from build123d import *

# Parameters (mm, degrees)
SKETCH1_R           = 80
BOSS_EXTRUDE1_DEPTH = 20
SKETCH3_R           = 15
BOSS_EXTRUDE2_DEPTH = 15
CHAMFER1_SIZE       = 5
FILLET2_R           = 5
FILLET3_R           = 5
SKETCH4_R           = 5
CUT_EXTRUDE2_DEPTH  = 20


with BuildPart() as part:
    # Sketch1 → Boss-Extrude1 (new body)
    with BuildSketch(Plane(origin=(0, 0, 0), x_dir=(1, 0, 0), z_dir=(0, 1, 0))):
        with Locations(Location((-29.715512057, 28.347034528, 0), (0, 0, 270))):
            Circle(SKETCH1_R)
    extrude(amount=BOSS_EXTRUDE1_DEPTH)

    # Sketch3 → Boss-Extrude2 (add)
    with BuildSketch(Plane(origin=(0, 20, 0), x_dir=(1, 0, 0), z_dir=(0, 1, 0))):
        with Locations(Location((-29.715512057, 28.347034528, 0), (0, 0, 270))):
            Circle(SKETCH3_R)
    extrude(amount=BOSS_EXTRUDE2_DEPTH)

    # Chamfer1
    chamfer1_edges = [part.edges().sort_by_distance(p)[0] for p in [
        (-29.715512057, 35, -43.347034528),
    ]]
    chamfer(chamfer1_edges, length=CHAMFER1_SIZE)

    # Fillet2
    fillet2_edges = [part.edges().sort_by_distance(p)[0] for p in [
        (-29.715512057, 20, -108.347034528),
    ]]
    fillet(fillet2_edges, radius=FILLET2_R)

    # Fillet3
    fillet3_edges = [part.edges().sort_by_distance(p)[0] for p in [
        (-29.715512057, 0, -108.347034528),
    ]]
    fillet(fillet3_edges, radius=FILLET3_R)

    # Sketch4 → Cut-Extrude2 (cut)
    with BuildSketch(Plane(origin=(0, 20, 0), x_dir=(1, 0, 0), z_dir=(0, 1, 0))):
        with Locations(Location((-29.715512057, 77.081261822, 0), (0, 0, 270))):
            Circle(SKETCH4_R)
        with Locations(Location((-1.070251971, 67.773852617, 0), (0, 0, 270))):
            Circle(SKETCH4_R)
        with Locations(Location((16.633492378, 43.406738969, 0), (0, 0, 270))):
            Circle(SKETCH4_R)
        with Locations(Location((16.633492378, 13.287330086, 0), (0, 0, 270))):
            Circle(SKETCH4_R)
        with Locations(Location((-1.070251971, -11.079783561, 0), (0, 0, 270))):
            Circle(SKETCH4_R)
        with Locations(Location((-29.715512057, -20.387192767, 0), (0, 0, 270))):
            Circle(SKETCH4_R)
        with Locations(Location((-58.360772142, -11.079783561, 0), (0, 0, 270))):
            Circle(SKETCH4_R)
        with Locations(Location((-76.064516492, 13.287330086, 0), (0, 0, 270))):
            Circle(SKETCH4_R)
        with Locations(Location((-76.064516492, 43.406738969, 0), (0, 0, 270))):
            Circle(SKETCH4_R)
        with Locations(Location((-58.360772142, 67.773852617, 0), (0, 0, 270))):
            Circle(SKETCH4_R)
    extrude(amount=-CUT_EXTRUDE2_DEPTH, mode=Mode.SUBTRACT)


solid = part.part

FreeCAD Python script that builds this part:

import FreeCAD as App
import Part
import Sketcher
from FreeCAD import Vector


def edges_at(feature, points):
    """Names of the edges that pass closest to the given points."""
    edges = feature.Shape.Edges
    near = lambda p: min(range(len(edges)), key=lambda i: edges[i].distToShape(Part.Vertex(*p))[0])
    return sorted({f"Edge{near(p) + 1}" for p in points})

doc = App.newDocument("Part")
params = doc.addObject("Spreadsheet::Sheet", "Params")
for row, (alias, value) in enumerate([
    ("sketch1_diameter", "160 mm"),
    ("pad1_length", "20 mm"),
    ("sketch2_diameter", "30 mm"),
    ("pad2_length", "15 mm"),
    ("chamfer_size", "5 mm"),
    ("fillet_radius", "5 mm"),
    ("fillet2_radius", "5 mm"),
    ("sketch3_diameter", "10 mm"),
    ("pocket1_length", "20 mm"),
], start=1):
    params.set(f"A{row}", alias)
    params.set(f"B{row}", "=" + value)
    params.setAlias(f"B{row}", alias)

body = doc.addObject("PartDesign::Body", "Body")

sketch1 = body.newObject("Sketcher::SketchObject", "Sketch")
sketch1.AttachmentSupport = (doc.getObject("XZ_Plane"), [""])
sketch1.MapMode = "FlatFace"
sketch1.addGeometry(Part.Circle(Vector(-30, -28, 0), Vector(0, 0, 1), 80), False)
sketch1.addConstraint(Sketcher.Constraint("Diameter", 0, 160.0))
sketch1.addConstraint(Sketcher.Constraint("DistanceX", 0, 3, -1, 1, 29.715512))
sketch1.addConstraint(Sketcher.Constraint("DistanceY", 0, 3, -1, 1, 28.347035))
sketch1.setExpression("Constraints[0]", "Params.sketch1_diameter")
pad1 = body.newObject("PartDesign::Pad", "Pad")
pad1.Profile = sketch1
pad1.setExpression("Length", "Params.pad1_length")
pad1.Reversed = True

sketch2 = body.newObject("Sketcher::SketchObject", "Sketch001")
sketch2.AttachmentSupport = (doc.getObject("XZ_Plane"), [""])
sketch2.MapMode = "FlatFace"
sketch2.AttachmentOffset = App.Placement(Vector(0, 0, -20), App.Rotation())
sketch2.addGeometry(Part.Circle(Vector(-30, -28, 0), Vector(0, 0, 1), 15), False)
sketch2.addConstraint(Sketcher.Constraint("Diameter", 0, 30.0))
sketch2.addConstraint(Sketcher.Constraint("DistanceX", 0, 3, -1, 1, 29.715512))
sketch2.addConstraint(Sketcher.Constraint("DistanceY", 0, 3, -1, 1, 28.347035))
sketch2.setExpression("Constraints[0]", "Params.sketch2_diameter")
pad2 = body.newObject("PartDesign::Pad", "Pad001")
pad2.Profile = sketch2
pad2.setExpression("Length", "Params.pad2_length")
pad2.Reversed = True
doc.recompute()

chamfer = body.newObject("PartDesign::Chamfer", "Chamfer")
chamfer.Base = (pad2, edges_at(pad2, [(-29.716, 35, -43.347)]))
chamfer.setExpression("Size", "Params.chamfer_size")
doc.recompute()

fillet = body.newObject("PartDesign::Fillet", "Fillet")
fillet.Base = (chamfer, edges_at(chamfer, [(-29.716, 20, -108.347)]))
fillet.setExpression("Radius", "Params.fillet_radius")
doc.recompute()

fillet2 = body.newObject("PartDesign::Fillet", "Fillet001")
fillet2.Base = (fillet, edges_at(fillet, [(-29.716, 0, -108.347)]))
fillet2.setExpression("Radius", "Params.fillet2_radius")

sketch3 = body.newObject("Sketcher::SketchObject", "Sketch002")
sketch3.AttachmentSupport = (doc.getObject("XZ_Plane"), [""])
sketch3.MapMode = "FlatFace"
sketch3.AttachmentOffset = App.Placement(Vector(0, 0, -20), App.Rotation())
sketch3.addGeometry(Part.Circle(Vector(-30, -77, 0), Vector(0, 0, 1), 5), False)
sketch3.addGeometry(Part.Circle(Vector(-1, -68, 0), Vector(0, 0, 1), 5), False)
sketch3.addGeometry(Part.Circle(Vector(17, -43, 0), Vector(0, 0, 1), 5), False)
sketch3.addGeometry(Part.Circle(Vector(17, -13, 0), Vector(0, 0, 1), 5), False)
sketch3.addGeometry(Part.Circle(Vector(-1, 11, 0), Vector(0, 0, 1), 5), False)
sketch3.addGeometry(Part.Circle(Vector(-30, 20, 0), Vector(0, 0, 1), 5), False)
sketch3.addGeometry(Part.Circle(Vector(-58, 11, 0), Vector(0, 0, 1), 5), False)
sketch3.addGeometry(Part.Circle(Vector(-76, -13, 0), Vector(0, 0, 1), 5), False)
sketch3.addGeometry(Part.Circle(Vector(-76, -43, 0), Vector(0, 0, 1), 5), False)
sketch3.addGeometry(Part.Circle(Vector(-58, -68, 0), Vector(0, 0, 1), 5), False)
sketch3.addConstraint(Sketcher.Constraint("Equal", 0, 1))
sketch3.addConstraint(Sketcher.Constraint("Equal", 1, 2))
sketch3.addConstraint(Sketcher.Constraint("Equal", 2, 3))
sketch3.addConstraint(Sketcher.Constraint("Equal", 3, 4))
sketch3.addConstraint(Sketcher.Constraint("Equal", 4, 5))
sketch3.addConstraint(Sketcher.Constraint("Equal", 5, 6))
sketch3.addConstraint(Sketcher.Constraint("Equal", 6, 7))
sketch3.addConstraint(Sketcher.Constraint("Equal", 7, 8))
sketch3.addConstraint(Sketcher.Constraint("Equal", 8, 9))
sketch3.addConstraint(Sketcher.Constraint("Horizontal", 4, 3, 6, 3))
sketch3.addConstraint(Sketcher.Constraint("Horizontal", 3, 3, 7, 3))
sketch3.addConstraint(Sketcher.Constraint("Horizontal", 2, 3, 8, 3))
sketch3.addConstraint(Sketcher.Constraint("Horizontal", 1, 3, 9, 3))
sketch3.addConstraint(Sketcher.Constraint("Vertical", 2, 3, 3, 3))
sketch3.addConstraint(Sketcher.Constraint("Vertical", 1, 3, 4, 3))
sketch3.addConstraint(Sketcher.Constraint("Vertical", 0, 3, 5, 3))
sketch3.addConstraint(Sketcher.Constraint("Vertical", 7, 3, 8, 3))
sketch3.addConstraint(Sketcher.Constraint("Vertical", 6, 3, 9, 3))
sketch3.addConstraint(Sketcher.Constraint("Diameter", 0, 10.0))
sketch3.addConstraint(Sketcher.Constraint("DistanceY", 0, 3, -1, 1, 77.081262))
sketch3.addConstraint(Sketcher.Constraint("DistanceX", 1, 3, -1, 1, 1.070252))
sketch3.addConstraint(Sketcher.Constraint("DistanceY", 2, 3, -1, 1, 43.406739))
sketch3.addConstraint(Sketcher.Constraint("DistanceY", 3, 3, -1, 1, 13.28733))
sketch3.addConstraint(Sketcher.Constraint("DistanceX", 0, 3, 1, 3, 28.64526))
sketch3.addConstraint(Sketcher.Constraint("DistanceY", 0, 3, 1, 3, 9.307409))
sketch3.addConstraint(Sketcher.Constraint("DistanceY", 4, 3, 5, 3, 9.307409))
sketch3.addConstraint(Sketcher.Constraint("DistanceY", 2, 3, 5, 3, 63.793932))
sketch3.addConstraint(Sketcher.Constraint("DistanceX", 6, 3, 5, 3, 28.64526))
sketch3.addConstraint(Sketcher.Constraint("DistanceX", 7, 3, 3, 3, 92.698009))
sketch3.addConstraint(Sketcher.Constraint("DistanceX", -1, 1, 2, 3, 16.633492))
sketch3.setExpression("Constraints[18]", "Params.sketch3_diameter")
pocket1 = body.newObject("PartDesign::Pocket", "Pocket")
pocket1.Profile = sketch3
pocket1.setExpression("Length", "Params.pocket1_length")
pocket1.Reversed = True

doc.recompute()
